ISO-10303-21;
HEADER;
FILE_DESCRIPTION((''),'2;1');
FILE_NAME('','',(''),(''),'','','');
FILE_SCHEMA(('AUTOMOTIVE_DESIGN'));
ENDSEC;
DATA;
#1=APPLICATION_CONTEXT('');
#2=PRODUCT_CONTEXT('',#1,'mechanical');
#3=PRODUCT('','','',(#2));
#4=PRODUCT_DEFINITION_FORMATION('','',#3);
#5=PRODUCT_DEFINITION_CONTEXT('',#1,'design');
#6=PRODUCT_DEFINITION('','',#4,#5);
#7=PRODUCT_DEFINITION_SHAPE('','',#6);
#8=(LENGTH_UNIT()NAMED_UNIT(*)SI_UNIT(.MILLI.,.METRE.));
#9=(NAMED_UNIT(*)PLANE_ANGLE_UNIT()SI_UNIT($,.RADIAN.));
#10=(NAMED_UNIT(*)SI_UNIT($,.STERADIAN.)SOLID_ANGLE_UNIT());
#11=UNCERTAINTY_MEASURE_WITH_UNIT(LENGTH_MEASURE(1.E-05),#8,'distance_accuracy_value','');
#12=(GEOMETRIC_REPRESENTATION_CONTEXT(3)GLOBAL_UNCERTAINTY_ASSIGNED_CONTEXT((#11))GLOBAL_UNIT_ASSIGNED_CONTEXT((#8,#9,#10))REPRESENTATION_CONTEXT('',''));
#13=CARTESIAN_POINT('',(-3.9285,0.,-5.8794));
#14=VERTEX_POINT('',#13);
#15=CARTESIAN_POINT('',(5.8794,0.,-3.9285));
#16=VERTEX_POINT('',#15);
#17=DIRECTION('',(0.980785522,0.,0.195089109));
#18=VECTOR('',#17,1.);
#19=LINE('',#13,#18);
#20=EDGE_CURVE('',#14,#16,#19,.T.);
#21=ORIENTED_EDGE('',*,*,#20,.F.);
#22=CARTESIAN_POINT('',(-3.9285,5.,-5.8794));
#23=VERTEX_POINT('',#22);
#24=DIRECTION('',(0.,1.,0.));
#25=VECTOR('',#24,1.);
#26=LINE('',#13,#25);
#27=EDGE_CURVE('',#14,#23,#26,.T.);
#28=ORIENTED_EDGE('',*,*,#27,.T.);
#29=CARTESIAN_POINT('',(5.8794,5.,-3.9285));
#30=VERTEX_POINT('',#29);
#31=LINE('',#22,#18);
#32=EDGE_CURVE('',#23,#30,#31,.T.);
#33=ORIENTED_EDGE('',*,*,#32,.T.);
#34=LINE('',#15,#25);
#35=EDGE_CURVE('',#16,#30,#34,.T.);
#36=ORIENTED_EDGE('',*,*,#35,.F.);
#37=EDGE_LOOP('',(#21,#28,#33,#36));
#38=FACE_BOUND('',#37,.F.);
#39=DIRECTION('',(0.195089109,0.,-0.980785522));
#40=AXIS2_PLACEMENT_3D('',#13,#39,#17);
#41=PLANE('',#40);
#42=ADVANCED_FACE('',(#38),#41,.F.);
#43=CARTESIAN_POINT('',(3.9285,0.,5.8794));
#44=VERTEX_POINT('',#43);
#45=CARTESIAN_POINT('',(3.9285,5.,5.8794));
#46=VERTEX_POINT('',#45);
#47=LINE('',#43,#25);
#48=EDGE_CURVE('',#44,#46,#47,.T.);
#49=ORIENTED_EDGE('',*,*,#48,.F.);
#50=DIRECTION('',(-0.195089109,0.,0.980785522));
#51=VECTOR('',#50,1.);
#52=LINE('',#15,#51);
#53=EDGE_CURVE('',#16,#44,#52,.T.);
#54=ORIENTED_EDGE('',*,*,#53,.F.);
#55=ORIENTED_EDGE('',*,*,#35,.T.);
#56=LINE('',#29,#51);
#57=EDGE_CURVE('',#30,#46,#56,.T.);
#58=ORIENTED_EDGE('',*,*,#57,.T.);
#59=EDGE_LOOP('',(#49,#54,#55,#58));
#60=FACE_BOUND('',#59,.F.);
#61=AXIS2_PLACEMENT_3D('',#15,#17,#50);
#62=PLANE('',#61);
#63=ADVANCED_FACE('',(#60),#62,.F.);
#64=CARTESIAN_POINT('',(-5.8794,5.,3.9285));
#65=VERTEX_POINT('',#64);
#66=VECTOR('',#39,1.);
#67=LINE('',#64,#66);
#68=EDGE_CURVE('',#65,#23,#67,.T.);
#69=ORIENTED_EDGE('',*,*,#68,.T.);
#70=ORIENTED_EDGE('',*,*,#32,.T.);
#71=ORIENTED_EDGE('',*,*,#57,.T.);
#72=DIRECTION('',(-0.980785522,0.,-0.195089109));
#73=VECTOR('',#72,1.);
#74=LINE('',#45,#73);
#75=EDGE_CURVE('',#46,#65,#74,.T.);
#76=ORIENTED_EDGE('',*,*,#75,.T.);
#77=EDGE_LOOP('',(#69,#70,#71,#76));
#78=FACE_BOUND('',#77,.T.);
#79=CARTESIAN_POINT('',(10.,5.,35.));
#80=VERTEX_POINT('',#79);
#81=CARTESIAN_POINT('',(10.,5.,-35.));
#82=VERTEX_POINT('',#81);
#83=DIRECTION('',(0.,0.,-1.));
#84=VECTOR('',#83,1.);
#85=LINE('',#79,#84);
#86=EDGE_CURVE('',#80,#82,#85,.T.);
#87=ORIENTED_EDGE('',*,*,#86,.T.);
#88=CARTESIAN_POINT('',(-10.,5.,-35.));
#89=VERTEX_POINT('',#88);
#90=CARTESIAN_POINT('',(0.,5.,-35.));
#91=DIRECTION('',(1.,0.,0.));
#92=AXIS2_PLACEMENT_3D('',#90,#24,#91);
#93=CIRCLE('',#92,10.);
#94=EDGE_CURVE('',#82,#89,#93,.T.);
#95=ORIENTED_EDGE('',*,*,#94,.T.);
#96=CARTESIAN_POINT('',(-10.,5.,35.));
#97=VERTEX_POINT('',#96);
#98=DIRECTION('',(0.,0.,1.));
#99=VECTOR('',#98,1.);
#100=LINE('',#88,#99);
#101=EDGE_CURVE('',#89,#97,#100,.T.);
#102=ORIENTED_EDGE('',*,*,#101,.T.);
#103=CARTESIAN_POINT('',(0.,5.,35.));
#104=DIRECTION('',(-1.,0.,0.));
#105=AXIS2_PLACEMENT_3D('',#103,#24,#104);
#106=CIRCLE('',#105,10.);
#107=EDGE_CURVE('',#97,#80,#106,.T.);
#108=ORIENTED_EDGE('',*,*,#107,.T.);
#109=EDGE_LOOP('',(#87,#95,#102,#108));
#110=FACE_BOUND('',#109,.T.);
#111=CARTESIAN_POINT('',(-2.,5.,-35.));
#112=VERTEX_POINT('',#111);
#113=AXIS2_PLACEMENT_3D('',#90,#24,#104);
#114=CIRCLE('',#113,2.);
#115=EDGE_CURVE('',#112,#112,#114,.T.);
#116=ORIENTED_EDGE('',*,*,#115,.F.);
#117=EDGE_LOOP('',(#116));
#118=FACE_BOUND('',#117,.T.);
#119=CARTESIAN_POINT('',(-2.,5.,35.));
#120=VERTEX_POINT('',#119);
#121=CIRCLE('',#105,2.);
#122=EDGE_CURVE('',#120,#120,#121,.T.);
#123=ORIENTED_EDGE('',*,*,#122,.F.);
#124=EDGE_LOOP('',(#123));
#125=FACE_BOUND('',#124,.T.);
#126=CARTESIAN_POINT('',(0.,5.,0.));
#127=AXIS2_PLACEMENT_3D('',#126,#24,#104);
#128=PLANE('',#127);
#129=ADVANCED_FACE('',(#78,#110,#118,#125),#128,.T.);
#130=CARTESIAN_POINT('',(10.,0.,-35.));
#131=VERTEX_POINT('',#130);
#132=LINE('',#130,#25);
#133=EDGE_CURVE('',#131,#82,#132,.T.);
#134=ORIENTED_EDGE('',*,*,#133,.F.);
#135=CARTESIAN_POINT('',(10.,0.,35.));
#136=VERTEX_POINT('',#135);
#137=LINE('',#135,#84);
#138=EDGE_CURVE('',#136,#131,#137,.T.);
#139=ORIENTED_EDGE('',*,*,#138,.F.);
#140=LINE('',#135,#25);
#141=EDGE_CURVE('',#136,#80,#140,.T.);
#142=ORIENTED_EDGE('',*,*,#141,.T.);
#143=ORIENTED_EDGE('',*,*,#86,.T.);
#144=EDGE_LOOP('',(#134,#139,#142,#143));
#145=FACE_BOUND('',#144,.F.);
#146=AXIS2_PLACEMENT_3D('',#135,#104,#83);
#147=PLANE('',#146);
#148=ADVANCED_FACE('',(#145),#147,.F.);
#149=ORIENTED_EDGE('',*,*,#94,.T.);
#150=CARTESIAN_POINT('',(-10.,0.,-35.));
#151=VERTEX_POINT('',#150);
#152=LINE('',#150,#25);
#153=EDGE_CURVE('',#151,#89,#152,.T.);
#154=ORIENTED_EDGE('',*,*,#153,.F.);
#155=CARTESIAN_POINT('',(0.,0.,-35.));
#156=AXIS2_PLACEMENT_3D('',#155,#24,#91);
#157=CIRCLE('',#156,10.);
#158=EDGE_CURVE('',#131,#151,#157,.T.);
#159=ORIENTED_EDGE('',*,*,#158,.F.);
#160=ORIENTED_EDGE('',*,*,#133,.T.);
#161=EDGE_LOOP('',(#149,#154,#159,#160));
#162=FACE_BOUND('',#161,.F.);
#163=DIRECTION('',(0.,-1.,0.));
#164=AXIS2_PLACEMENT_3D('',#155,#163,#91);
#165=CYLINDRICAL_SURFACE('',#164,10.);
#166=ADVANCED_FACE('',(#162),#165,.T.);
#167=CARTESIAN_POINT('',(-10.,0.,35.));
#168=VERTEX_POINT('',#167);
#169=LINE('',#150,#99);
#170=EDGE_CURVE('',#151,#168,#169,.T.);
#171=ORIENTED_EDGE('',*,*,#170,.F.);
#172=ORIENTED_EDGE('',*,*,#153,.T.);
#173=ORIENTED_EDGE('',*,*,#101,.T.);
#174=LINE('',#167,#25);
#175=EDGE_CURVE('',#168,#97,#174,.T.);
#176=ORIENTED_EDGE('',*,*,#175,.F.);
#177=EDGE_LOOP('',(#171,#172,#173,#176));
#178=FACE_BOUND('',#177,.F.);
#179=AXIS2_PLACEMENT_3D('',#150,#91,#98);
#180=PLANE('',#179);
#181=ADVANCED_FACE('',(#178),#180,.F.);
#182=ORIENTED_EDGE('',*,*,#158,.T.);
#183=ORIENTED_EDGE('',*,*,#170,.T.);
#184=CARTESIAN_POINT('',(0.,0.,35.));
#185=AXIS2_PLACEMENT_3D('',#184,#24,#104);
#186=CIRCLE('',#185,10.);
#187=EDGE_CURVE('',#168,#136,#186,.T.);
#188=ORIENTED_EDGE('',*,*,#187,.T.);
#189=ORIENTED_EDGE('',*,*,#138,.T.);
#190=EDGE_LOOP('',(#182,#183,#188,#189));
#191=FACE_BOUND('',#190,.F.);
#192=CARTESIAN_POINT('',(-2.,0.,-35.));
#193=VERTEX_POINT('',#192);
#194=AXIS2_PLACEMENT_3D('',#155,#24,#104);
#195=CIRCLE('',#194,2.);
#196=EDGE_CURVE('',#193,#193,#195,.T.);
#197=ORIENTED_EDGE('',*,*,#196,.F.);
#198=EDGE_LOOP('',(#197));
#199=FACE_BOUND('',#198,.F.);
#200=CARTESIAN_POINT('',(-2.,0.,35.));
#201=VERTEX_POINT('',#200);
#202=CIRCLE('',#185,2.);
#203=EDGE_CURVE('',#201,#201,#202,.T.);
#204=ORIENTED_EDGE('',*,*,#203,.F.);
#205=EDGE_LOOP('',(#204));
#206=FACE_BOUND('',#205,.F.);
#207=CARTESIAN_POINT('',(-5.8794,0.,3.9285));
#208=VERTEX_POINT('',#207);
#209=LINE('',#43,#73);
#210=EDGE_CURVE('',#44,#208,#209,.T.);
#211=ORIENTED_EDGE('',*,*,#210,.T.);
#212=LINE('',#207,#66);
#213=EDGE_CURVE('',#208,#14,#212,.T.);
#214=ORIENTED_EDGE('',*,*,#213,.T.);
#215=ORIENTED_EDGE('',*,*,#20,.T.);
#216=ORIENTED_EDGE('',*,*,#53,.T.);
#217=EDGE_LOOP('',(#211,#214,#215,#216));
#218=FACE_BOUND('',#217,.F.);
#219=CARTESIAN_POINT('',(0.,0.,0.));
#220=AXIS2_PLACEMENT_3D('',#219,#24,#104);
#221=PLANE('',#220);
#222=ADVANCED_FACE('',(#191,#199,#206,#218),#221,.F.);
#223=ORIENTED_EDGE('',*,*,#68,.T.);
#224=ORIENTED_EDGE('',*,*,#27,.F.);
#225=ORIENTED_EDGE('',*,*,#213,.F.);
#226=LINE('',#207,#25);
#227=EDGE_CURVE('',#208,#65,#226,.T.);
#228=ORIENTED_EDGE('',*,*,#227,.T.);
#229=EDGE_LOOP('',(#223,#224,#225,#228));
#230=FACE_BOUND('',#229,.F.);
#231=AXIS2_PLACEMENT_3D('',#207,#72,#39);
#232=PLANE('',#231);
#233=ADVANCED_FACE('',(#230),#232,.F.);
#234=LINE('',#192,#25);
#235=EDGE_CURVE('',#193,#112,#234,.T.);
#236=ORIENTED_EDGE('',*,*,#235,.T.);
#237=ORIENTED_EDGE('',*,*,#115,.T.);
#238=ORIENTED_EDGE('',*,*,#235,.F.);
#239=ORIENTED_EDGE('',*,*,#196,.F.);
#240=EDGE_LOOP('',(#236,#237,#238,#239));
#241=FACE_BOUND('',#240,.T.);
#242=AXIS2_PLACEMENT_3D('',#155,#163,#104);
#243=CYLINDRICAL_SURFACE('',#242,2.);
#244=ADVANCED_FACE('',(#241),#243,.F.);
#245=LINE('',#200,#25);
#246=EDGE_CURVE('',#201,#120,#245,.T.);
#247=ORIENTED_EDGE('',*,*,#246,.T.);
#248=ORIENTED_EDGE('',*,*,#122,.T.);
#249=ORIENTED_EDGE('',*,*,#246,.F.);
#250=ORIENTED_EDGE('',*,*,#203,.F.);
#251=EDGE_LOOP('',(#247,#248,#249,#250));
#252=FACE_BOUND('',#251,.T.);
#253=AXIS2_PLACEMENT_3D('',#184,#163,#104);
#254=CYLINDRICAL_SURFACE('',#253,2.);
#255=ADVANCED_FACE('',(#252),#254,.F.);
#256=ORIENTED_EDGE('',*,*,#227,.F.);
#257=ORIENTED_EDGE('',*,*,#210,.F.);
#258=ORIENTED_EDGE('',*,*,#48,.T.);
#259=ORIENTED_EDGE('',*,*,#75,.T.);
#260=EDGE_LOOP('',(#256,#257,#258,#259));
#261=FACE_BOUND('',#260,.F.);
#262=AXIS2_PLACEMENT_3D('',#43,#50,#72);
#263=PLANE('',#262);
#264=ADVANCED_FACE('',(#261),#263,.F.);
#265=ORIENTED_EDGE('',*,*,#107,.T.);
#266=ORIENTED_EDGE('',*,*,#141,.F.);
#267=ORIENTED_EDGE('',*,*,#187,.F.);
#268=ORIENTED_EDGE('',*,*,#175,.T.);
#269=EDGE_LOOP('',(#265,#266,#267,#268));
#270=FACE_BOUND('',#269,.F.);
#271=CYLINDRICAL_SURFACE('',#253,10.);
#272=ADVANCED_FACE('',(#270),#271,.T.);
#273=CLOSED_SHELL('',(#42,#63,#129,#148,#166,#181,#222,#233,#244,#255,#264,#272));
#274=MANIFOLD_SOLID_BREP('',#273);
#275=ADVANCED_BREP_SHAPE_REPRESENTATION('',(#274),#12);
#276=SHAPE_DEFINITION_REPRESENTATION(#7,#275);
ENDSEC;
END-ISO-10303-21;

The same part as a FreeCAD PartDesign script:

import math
import FreeCAD as App
import Part
import Sketcher
from FreeCAD import Vector
Q = App.Units.Quantity


def add_polygon(sketch, points):
    """Adds a closed chain of lines whose ends are joined by coincident constraints."""
    first, n = sketch.GeometryCount, len(points)
    for a, b in zip(points, points[1:] + points[:1]):
        sketch.addGeometry(Part.LineSegment(App.Vector(*a, 0), App.Vector(*b, 0)), False)
    for i in range(n):
        sketch.addConstraint(Sketcher.Constraint("Coincident", first + i, 2, first + (i + 1) % n, 1))

doc = App.newDocument("Part")
body = doc.addObject("PartDesign::Body", "Body")

# Sketch on XZ plane
sketch1 = doc.addObject("Sketcher::SketchObject", "Sketch")
body.addObject(sketch1)
sketch1.AttachmentSupport = (doc.XZ_Plane, [""])
sketch1.MapMode = "FlatFace"
sketch1.addGeometry(Part.ArcOfCircle(Part.Circle(Vector(0, 35, 0), Vector(0, 0, 1), 10), math.radians(0), math.radians(180)), False)  # 0
sketch1.addGeometry(Part.LineSegment(Vector(10, 35, 0), Vector(10, -35, 0)), False)  # 1
sketch1.addGeometry(Part.ArcOfCircle(Part.Circle(Vector(0, -35, 0), Vector(0, 0, 1), 10), math.radians(180), math.radians(360)), False)  # 2
sketch1.addGeometry(Part.LineSegment(Vector(-10, -35, 0), Vector(-10, 35, 0)), False)  # 3
sketch1.addGeometry(Part.Circle(Vector(0, -35, 0), Vector(0, 0, 1), 2), False)  # 4
add_polygon(sketch1, [(-3.9, -5.9), (5.9, -3.9), (3.9, 5.9), (-5.9, 3.9)])  # lines 5-8
sketch1.addGeometry(Part.Circle(Vector(0, 35, 0), Vector(0, 0, 1), 2), False)  # 9
sketch1.addConstraint([
    Sketcher.Constraint("Tangent", 0, 1, 1, 1),
    Sketcher.Constraint("Tangent", 1, 2, 2, 2),
    Sketcher.Constraint("Tangent", 2, 1, 3, 1),
    Sketcher.Constraint("Tangent", 3, 2, 0, 2),
    Sketcher.Constraint("Vertical", 1),
    Sketcher.Constraint("Vertical", 3),
    Sketcher.Constraint("Coincident", 4, 3, 2, 3),
    Sketcher.Constraint("Coincident", 9, 3, 0, 3),
    Sketcher.Constraint("Equal", 4, 9),
    Sketcher.Constraint("Symmetric", 0, 3, 2, 3, -1, 1),
    Sketcher.Constraint("Symmetric", 5, 2, 7, 2, -1, 1),
    Sketcher.Constraint("Symmetric", 6, 2, 8, 2, -1, 1),
    Sketcher.Constraint("Perpendicular", 5, 6),
    Sketcher.Constraint("Equal", 5, 6),
    Sketcher.Constraint("Diameter", 4, Q("4 mm")),
    Sketcher.Constraint("Radius", 0, Q("10 mm")),
    Sketcher.Constraint("Distance", 5, Q("10 mm")),
    Sketcher.Constraint("DistanceY", -1, 1, 0, 3, Q("35 mm")),
    Sketcher.Constraint("Angle", 8, Q("-78.75 deg")),
])
pad1 = doc.addObject("PartDesign::Pad", "Pad")
body.addObject(pad1)
pad1.Profile = sketch1
pad1.Length = 5
pad1.Reversed = True

doc.recompute()
